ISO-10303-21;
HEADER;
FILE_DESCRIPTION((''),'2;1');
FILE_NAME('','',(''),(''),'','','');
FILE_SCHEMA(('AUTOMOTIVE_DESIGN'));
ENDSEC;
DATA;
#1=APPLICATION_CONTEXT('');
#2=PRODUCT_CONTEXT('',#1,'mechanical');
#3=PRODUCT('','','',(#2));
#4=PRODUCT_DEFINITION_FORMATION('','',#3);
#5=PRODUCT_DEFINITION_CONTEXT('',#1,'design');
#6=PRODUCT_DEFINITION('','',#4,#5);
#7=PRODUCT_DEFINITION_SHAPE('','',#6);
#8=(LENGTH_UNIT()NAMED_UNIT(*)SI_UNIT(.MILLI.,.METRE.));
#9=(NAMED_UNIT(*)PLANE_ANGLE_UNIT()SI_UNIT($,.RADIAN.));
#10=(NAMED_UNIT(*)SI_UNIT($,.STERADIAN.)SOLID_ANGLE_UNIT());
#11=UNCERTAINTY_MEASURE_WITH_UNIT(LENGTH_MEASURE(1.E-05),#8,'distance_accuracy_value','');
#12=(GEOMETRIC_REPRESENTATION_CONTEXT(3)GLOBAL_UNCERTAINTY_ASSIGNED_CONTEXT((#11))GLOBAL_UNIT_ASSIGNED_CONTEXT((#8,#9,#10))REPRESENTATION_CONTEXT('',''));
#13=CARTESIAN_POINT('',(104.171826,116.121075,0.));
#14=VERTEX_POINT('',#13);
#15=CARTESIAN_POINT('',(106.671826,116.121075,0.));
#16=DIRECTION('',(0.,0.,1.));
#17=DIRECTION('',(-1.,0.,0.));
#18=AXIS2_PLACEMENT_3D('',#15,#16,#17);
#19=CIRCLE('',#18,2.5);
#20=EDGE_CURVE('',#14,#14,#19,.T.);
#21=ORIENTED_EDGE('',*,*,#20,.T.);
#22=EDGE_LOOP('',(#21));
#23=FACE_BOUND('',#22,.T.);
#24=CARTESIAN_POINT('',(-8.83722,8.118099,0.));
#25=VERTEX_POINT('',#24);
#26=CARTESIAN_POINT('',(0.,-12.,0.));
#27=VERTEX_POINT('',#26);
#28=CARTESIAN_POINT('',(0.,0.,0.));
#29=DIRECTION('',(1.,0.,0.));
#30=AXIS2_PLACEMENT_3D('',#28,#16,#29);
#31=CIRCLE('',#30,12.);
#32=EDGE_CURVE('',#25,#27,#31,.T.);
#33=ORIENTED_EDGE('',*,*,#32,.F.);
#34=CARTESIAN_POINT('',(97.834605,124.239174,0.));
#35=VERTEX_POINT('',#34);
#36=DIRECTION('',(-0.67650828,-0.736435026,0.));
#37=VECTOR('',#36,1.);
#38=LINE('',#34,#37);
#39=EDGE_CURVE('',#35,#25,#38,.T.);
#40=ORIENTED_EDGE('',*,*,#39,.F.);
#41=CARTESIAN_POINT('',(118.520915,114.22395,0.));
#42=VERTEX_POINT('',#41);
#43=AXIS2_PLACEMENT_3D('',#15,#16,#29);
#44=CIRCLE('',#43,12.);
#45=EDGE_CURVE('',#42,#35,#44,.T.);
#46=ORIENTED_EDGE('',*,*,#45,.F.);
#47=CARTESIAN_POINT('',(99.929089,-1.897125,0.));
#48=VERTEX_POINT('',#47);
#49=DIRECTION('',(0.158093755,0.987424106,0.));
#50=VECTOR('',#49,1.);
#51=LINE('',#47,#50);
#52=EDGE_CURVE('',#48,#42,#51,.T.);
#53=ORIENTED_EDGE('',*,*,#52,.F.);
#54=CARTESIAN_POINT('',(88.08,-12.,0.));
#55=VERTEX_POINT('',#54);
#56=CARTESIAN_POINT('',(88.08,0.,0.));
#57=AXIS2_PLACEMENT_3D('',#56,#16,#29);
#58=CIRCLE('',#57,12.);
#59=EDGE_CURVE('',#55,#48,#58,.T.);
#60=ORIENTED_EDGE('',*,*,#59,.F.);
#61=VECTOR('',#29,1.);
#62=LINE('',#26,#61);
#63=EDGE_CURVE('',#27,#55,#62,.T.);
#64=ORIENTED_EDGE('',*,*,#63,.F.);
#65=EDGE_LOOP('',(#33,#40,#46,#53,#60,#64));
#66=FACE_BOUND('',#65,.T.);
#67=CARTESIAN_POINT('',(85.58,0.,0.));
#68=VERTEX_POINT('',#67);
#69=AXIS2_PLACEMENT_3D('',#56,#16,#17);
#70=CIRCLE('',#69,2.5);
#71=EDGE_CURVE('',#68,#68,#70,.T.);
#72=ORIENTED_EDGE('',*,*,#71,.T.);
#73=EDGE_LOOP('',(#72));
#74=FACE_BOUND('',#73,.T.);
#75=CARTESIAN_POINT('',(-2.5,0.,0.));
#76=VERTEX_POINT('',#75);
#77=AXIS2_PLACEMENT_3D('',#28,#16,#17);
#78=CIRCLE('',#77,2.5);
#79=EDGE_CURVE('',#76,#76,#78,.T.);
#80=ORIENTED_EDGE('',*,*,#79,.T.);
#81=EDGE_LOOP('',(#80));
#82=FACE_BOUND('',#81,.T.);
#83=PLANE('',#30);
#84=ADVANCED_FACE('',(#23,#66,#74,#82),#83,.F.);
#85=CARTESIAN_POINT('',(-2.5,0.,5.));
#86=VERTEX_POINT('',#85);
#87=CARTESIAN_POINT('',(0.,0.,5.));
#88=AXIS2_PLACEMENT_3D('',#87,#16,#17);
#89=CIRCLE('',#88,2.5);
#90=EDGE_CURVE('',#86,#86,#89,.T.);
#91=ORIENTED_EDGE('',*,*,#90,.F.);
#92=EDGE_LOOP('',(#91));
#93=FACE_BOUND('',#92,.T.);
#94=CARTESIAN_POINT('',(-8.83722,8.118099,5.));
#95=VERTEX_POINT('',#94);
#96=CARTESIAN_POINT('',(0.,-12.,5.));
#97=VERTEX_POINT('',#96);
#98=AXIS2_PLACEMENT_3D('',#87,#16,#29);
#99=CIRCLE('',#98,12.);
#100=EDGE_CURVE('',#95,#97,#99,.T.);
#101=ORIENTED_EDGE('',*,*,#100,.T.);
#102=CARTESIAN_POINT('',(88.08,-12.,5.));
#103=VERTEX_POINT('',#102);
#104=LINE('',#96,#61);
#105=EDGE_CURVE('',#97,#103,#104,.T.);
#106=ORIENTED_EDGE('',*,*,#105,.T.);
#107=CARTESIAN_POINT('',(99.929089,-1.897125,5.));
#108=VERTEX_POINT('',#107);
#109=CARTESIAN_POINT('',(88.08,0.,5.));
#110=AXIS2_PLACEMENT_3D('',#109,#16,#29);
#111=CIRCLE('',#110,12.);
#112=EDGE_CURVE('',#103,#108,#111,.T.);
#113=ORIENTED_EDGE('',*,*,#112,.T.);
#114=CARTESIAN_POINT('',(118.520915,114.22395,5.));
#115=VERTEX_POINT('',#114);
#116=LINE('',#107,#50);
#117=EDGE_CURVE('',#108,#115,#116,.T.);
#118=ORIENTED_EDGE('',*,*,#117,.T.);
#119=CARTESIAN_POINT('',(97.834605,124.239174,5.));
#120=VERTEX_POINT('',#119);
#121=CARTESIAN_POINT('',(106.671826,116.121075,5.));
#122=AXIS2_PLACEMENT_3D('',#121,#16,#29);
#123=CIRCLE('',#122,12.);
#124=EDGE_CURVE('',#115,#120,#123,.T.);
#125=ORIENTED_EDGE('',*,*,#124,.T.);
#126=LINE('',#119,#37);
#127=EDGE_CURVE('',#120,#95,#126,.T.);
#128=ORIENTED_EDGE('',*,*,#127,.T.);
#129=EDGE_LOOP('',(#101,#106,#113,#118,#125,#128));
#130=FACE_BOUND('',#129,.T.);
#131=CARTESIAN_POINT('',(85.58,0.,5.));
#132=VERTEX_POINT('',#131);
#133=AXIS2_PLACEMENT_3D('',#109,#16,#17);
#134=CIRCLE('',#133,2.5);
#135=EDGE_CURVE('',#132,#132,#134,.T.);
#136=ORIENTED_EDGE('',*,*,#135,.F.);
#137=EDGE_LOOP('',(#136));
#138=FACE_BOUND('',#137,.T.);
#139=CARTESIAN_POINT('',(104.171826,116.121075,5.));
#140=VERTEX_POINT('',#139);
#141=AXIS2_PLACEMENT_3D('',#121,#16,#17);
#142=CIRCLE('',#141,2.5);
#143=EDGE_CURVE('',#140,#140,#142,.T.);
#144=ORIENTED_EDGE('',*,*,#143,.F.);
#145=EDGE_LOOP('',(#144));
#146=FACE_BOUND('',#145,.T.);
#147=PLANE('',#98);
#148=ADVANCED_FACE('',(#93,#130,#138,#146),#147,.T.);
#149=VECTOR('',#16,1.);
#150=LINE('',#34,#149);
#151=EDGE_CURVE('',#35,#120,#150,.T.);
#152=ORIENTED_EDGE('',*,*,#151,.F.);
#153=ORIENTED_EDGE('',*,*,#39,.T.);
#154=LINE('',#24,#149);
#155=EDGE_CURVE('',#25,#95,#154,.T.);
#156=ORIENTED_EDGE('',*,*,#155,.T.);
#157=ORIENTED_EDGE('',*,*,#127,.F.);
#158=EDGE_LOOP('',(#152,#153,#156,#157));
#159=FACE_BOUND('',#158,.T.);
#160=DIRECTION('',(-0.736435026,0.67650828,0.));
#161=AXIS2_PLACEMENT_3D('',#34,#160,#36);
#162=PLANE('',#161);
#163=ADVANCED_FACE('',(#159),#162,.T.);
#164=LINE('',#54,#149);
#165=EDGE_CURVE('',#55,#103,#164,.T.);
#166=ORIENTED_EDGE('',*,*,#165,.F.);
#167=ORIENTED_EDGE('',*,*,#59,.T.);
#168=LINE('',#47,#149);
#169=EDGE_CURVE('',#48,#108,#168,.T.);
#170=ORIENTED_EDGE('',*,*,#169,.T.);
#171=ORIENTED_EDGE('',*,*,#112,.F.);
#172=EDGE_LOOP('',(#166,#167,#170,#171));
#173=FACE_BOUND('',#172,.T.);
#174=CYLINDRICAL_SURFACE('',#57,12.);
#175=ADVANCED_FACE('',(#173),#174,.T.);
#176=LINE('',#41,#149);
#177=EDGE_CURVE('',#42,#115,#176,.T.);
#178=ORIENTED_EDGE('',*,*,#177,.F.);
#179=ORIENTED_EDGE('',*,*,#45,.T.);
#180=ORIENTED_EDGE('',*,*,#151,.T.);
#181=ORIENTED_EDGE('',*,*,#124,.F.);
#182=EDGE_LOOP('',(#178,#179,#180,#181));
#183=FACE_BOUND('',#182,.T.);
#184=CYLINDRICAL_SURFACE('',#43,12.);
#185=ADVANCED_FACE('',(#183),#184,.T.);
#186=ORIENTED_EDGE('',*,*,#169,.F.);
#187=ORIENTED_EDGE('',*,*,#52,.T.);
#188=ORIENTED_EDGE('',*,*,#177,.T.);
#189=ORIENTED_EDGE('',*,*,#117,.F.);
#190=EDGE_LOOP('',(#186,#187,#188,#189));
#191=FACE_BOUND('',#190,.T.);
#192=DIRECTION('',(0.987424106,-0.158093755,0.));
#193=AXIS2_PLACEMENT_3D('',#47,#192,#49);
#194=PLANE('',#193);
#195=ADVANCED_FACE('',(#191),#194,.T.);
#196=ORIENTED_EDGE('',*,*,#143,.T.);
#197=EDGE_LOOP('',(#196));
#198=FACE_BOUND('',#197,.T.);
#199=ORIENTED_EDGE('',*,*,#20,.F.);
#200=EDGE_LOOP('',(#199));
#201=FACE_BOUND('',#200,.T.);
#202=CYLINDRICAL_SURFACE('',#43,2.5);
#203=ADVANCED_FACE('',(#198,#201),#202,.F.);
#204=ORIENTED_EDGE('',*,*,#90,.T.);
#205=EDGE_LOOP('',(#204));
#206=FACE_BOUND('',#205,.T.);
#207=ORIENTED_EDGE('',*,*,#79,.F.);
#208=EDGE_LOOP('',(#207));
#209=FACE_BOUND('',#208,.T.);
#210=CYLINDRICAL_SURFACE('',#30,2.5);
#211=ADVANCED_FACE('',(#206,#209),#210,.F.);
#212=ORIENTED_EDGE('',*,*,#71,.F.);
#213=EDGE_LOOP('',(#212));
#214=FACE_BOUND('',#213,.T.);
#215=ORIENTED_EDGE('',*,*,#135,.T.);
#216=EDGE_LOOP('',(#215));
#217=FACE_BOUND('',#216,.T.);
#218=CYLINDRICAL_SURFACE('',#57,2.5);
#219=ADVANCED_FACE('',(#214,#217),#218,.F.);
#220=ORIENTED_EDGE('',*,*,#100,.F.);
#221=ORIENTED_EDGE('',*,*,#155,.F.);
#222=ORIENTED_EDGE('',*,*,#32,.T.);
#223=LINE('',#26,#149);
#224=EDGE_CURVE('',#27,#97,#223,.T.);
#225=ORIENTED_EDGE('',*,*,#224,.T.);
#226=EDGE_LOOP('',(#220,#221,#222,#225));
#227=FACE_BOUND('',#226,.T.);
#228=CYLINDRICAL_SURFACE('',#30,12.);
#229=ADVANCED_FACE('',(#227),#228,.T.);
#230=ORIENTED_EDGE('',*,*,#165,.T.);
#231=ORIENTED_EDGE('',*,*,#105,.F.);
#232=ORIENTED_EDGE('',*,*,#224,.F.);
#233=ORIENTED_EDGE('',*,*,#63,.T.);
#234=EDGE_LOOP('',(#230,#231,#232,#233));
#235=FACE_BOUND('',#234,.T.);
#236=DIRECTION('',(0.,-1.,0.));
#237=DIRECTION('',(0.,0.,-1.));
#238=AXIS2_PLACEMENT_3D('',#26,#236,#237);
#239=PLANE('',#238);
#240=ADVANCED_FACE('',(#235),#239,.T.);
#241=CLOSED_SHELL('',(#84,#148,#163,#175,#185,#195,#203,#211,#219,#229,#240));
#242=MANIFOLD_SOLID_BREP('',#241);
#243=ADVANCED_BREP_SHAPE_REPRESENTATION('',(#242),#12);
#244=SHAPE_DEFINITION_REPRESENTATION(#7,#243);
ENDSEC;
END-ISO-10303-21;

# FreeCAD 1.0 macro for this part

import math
import FreeCAD as App
import Part
import Sketcher

V = App.Vector

doc = App.newDocument("Part")
params = doc.addObject("Spreadsheet::Sheet", "Params")
for row, (alias, value) in enumerate([
    ("sketch1_diameter", "5 mm"),
    ("sketch1_radius", "12 mm"),
    ("sketch1_length", "117.6 mm"),
    ("sketch1_width", "88.08 mm"),
    ("sketch1_length2", "157.68 mm"),
    ("pad1_length", "5 mm"),
], start=1):
    params.set(f"A{row}", alias)
    params.set(f"B{row}", "=" + value)
    params.setAlias(f"B{row}", alias)

body = doc.addObject("PartDesign::Body", "Body")

# Sketch on XY plane
sketch1 = body.newObject("Sketcher::SketchObject", "Sketch")
sketch1.AttachmentSupport = (doc.getObject("XY_Plane"), [""])
sketch1.MapMode = "FlatFace"
sketch1.AttachmentOffset = App.Placement(V(0, 0, 5), App.Rotation())
sketch1.addGeometry(Part.LineSegment(V(0, -12, 0), V(88.08, -12, 0)), False)
sketch1.addGeometry(Part.ArcOfCircle(Part.Circle(V(88.08, 0, 0), V(0, 0, 1), 12), math.radians(-90), math.radians(-9.096268)), False)
sketch1.addGeometry(Part.LineSegment(V(99.929089, -1.897125, 0), V(118.520915, 114.22395, 0)), False)
sketch1.addGeometry(Part.ArcOfCircle(Part.Circle(V(106.671826, 116.121075, 0), V(0, 0, 1), 12), math.radians(-9.096268), math.radians(137.428613)), False)
sketch1.addGeometry(Part.LineSegment(V(97.834605, 124.239174, 0), V(-8.83722, 8.118099, 0)), False)
sketch1.addGeometry(Part.ArcOfCircle(Part.Circle(V(0, 0, 0), V(0, 0, 1), 12), math.radians(137.428613), math.radians(270)), False)
sketch1.addGeometry(Part.Circle(V(0, 0, 0), V(0, 0, 1), 2.5), False)
sketch1.addGeometry(Part.Circle(V(88.08, 0, 0), V(0, 0, 1), 2.5), False)
sketch1.addGeometry(Part.Circle(V(106.671826, 116.121075, 0), V(0, 0, 1), 2.5), False)
sketch1.addConstraint(Sketcher.Constraint("Tangent", 0, 2, 1, 1))
sketch1.addConstraint(Sketcher.Constraint("Tangent", 1, 2, 2, 1))
sketch1.addConstraint(Sketcher.Constraint("Tangent", 2, 2, 3, 1))
sketch1.addConstraint(Sketcher.Constraint("Tangent", 3, 2, 4, 1))
sketch1.addConstraint(Sketcher.Constraint("Tangent", 4, 2, 5, 1))
sketch1.addConstraint(Sketcher.Constraint("Tangent", 5, 2, 0, 1))
sketch1.addConstraint(Sketcher.Constraint("Horizontal", 0))
sketch1.addConstraint(Sketcher.Constraint("Coincident", 5, 3, -1, 1))
sketch1.addConstraint(Sketcher.Constraint("Coincident", 6, 3, -1, 1))
sketch1.addConstraint(Sketcher.Constraint("Coincident", 7, 3, 1, 3))
sketch1.addConstraint(Sketcher.Constraint("Coincident", 8, 3, 3, 3))
sketch1.addConstraint(Sketcher.Constraint("Equal", 1, 3))
sketch1.addConstraint(Sketcher.Constraint("Equal", 3, 5))
sketch1.addConstraint(Sketcher.Constraint("Equal", 6, 7))
sketch1.addConstraint(Sketcher.Constraint("Equal", 7, 8))
sketch1.addConstraint(Sketcher.Constraint("Diameter", 6, 5.0))
sketch1.addConstraint(Sketcher.Constraint("Radius", 1, 12.0))
sketch1.addConstraint(Sketcher.Constraint("Distance", 2, 117.6))
sketch1.addConstraint(Sketcher.Constraint("DistanceX", 0, 1, 0, 2, 88.08))
sketch1.addConstraint(Sketcher.Constraint("Distance", 4, 157.68))
sketch1.setExpression("Constraints[15]", "Params.sketch1_diameter")
sketch1.setExpression("Constraints[16]", "Params.sketch1_radius")
sketch1.setExpression("Constraints[17]", "Params.sketch1_length")
sketch1.setExpression("Constraints[18]", "Params.sketch1_width")
sketch1.setExpression("Constraints[19]", "Params.sketch1_length2")
pad1 = body.newObject("PartDesign::Pad", "Pad")
pad1.Profile = sketch1
pad1.setExpression("Length", "Params.pad1_length")
pad1.Reversed = True

doc.recompute()
